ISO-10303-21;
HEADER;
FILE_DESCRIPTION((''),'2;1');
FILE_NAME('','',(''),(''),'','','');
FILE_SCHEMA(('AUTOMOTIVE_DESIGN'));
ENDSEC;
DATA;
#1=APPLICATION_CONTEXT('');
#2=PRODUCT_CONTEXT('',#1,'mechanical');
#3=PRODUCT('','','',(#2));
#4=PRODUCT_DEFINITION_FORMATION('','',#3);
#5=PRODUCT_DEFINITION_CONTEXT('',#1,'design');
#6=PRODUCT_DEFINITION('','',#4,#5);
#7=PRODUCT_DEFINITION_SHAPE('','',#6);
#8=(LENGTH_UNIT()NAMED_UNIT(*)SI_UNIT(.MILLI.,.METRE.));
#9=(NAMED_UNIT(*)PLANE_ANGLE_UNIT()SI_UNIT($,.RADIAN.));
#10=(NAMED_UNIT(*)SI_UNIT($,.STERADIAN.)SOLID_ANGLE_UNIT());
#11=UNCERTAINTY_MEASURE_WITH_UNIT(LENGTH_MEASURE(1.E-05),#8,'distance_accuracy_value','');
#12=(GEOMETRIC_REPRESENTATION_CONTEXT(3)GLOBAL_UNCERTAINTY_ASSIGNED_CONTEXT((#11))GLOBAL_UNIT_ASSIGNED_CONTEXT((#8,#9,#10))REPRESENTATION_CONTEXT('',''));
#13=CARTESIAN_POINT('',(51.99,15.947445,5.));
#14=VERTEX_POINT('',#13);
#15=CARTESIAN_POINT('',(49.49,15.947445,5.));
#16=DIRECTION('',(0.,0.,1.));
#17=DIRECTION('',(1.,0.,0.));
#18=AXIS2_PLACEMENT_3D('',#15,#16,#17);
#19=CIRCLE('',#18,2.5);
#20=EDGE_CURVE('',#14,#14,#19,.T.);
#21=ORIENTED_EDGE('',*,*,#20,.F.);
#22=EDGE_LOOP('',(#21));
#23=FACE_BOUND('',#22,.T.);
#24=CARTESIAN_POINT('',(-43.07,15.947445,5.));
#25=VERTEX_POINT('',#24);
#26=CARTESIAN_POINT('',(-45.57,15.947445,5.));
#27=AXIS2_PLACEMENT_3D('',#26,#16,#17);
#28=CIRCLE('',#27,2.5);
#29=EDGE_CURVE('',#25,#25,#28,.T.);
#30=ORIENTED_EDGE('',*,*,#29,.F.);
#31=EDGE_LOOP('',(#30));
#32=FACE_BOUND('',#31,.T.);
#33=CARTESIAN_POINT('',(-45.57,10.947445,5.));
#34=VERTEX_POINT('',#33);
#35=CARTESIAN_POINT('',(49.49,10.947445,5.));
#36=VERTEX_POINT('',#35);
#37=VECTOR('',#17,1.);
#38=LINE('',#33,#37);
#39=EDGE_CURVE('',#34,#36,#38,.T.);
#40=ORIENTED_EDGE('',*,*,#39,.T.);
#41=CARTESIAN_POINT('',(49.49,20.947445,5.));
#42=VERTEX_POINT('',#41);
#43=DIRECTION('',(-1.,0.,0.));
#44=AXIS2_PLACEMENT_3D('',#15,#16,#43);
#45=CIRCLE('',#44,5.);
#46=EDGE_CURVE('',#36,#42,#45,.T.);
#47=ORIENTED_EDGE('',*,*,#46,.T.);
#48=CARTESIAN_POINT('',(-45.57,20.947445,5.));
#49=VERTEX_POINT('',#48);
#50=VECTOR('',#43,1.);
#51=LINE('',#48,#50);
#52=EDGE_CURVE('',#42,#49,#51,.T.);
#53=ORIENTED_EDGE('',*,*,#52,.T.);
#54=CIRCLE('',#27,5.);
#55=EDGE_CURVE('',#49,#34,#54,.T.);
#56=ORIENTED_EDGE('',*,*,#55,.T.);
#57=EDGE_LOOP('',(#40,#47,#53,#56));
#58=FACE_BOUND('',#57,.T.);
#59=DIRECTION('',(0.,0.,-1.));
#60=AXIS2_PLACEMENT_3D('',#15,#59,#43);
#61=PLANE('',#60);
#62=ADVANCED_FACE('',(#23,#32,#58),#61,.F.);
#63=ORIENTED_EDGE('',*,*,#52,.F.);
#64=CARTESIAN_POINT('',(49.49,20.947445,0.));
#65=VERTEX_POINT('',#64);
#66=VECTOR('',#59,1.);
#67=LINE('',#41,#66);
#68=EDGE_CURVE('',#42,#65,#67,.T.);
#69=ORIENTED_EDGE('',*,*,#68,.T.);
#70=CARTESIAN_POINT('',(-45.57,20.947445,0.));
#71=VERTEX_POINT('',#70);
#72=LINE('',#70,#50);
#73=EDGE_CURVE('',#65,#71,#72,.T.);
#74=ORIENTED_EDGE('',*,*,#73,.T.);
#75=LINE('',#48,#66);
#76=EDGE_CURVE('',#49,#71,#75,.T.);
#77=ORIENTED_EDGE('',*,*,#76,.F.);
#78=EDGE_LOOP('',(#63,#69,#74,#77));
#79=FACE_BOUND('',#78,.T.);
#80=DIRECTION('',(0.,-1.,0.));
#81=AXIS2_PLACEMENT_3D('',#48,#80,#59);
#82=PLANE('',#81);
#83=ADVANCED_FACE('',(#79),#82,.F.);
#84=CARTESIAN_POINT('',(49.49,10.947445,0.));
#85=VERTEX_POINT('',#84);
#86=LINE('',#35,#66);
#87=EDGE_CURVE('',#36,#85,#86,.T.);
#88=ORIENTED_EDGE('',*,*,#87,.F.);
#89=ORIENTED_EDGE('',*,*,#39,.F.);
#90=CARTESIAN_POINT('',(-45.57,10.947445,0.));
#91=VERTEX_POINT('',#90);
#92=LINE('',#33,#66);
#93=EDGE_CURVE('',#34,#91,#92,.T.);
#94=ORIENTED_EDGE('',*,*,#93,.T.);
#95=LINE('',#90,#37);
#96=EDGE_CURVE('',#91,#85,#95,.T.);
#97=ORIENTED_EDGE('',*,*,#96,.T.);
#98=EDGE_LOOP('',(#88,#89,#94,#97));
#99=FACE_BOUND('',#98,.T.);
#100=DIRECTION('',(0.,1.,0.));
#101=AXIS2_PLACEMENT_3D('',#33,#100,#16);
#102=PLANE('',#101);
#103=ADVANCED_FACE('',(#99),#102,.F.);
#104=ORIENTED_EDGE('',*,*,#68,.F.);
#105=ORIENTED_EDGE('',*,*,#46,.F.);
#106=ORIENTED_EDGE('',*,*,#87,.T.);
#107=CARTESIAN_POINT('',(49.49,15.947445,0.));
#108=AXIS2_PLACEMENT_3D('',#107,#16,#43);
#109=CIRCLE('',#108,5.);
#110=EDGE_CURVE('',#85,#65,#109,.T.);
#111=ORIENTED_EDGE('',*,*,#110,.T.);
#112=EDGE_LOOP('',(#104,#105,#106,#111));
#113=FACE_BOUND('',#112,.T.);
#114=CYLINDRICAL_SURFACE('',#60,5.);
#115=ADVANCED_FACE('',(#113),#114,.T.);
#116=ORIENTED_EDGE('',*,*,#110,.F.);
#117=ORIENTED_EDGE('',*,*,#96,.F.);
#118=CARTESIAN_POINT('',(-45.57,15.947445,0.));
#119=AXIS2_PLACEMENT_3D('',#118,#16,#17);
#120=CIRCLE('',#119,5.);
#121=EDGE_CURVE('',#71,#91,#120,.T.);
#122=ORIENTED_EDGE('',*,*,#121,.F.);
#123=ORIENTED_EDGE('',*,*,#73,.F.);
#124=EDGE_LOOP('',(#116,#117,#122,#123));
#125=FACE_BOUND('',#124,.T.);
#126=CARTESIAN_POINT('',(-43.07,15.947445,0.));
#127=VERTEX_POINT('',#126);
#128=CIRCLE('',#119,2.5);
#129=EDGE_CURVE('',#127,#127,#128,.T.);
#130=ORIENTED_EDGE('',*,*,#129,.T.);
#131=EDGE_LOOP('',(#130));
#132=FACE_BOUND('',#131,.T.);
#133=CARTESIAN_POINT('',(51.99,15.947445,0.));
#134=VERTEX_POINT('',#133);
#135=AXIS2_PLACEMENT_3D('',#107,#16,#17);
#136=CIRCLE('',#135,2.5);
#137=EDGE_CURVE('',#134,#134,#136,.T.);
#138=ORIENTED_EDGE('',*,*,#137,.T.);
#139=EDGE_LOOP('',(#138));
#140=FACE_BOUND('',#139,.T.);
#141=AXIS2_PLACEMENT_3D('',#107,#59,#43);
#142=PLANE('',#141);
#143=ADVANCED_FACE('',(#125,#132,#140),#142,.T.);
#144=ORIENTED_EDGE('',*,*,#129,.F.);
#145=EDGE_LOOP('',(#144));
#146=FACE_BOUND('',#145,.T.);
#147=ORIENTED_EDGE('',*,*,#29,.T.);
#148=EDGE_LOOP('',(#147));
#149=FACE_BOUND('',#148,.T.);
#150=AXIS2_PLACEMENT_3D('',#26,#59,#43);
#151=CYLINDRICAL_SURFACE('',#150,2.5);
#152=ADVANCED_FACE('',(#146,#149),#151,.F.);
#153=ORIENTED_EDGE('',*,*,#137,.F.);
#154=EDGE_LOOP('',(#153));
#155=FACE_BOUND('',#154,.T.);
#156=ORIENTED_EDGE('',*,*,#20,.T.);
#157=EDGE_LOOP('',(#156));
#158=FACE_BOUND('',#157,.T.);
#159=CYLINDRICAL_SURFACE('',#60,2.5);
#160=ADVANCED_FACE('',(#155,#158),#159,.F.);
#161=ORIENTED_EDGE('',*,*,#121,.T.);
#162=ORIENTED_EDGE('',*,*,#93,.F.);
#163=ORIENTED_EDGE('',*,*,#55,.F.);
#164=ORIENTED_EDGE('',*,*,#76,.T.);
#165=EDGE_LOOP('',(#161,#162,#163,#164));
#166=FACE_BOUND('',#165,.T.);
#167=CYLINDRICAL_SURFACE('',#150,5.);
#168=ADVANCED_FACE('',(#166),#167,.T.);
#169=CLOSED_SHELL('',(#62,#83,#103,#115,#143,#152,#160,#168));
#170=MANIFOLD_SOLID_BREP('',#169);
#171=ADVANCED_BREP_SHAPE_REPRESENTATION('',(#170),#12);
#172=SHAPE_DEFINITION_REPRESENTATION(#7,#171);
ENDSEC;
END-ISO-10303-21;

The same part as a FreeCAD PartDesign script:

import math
import FreeCAD as App
import Part
import Sketcher
from FreeCAD import Vector
Q = App.Units.Quantity

doc = App.newDocument("Part")
params = doc.addObject("Spreadsheet::Sheet", "Params")
for row, (alias, value) in enumerate([
    ("sketch1_diameter", "5 mm"),
    ("sketch1_radius", "5 mm"),
    ("sketch1_width", "95.06 mm"),
    ("pad1_length", "5 mm"),
], start=1):
    params.set(f"A{row}", alias)
    params.set(f"B{row}", "=" + value)
    params.setAlias(f"B{row}", alias)

body = doc.addObject("PartDesign::Body", "Body")

sketch1 = doc.addObject("Sketcher::SketchObject", "Sketch")
body.addObject(sketch1)
sketch1.AttachmentSupport = (doc.XY_Plane, [""])
sketch1.MapMode = "FlatFace"
sketch1.addGeometry([
    Part.LineSegment(Vector(49.5, 20.9, 0), Vector(-45.6, 20.9, 0)),
    Part.ArcOfCircle(Part.Circle(Vector(-45.6, 15.9, 0), Vector(0, 0, 1), 5), math.radians(90), math.radians(270)),
    Part.LineSegment(Vector(-45.6, 10.9, 0), Vector(49.5, 10.9, 0)),
    Part.ArcOfCircle(Part.Circle(Vector(49.5, 15.9, 0), Vector(0, 0, 1), 5), math.radians(-90), math.radians(90)),
    Part.Circle(Vector(49.5, 15.9, 0), Vector(0, 0, 1), 2.5),
    Part.Circle(Vector(-45.6, 15.9, 0), Vector(0, 0, 1), 2.5),
], False)
sketch1.addConstraint([
    Sketcher.Constraint("Tangent", 0, 2, 1, 1),
    Sketcher.Constraint("Tangent", 1, 2, 2, 1),
    Sketcher.Constraint("Tangent", 2, 2, 3, 1),
    Sketcher.Constraint("Tangent", 3, 2, 0, 1),
    Sketcher.Constraint("Horizontal", 0),
    Sketcher.Constraint("Horizontal", 2),
    Sketcher.Constraint("Coincident", 4, 3, 3, 3),
    Sketcher.Constraint("Coincident", 5, 3, 1, 3),
    Sketcher.Constraint("Equal", 4, 5),
    Sketcher.Constraint("Diameter", 4, Q("5 mm")),
    Sketcher.Constraint("Radius", 1, Q("5 mm")),
    Sketcher.Constraint("DistanceX", 0, 2, 0, 1, Q("95.06 mm")),
    Sketcher.Constraint("DistanceX", 1, 3, -1, 1, Q("45.57 mm")),
    Sketcher.Constraint("DistanceY", -1, 1, 1, 3, Q("15.947445 mm")),
])
sketch1.setExpression("Constraints[9]", "Params.sketch1_diameter")
sketch1.setExpression("Constraints[10]", "Params.sketch1_radius")
sketch1.setExpression("Constraints[11]", "Params.sketch1_width")
pad1 = doc.addObject("PartDesign::Pad", "Pad")
body.addObject(pad1)
pad1.Profile = sketch1
pad1.setExpression("Length", "Params.pad1_length")

doc.recompute()
